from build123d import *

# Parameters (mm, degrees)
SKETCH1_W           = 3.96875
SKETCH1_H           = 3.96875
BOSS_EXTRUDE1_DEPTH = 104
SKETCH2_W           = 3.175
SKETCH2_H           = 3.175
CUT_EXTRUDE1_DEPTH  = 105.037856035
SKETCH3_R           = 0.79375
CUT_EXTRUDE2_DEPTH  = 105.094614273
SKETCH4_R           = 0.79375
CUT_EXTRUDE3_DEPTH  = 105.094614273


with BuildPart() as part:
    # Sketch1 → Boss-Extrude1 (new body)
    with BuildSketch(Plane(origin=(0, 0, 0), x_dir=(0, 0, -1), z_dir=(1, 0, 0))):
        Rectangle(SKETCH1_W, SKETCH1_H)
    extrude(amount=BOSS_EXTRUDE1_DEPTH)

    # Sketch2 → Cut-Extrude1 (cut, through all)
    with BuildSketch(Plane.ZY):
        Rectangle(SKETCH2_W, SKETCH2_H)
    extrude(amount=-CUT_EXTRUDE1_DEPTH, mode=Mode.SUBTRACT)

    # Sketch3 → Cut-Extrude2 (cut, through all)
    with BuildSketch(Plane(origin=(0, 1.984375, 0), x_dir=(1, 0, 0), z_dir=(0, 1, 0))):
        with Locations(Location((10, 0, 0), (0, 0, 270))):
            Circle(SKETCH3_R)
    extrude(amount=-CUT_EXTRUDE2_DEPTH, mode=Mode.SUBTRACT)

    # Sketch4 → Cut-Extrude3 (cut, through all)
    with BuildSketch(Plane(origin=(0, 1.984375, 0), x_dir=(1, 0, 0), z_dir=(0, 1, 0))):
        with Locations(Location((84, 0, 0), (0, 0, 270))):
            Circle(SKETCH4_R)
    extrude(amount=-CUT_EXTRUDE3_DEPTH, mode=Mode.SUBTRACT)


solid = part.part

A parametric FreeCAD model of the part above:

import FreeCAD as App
import Part
import Sketcher
from FreeCAD import Vector
Q = App.Units.Quantity


def add_polygon(sketch, points):
    """Adds a closed chain of lines whose ends are joined by coincident constraints."""
    first, n = sketch.GeometryCount, len(points)
    for a, b in zip(points, points[1:] + points[:1]):
        sketch.addGeometry(Part.LineSegment(App.Vector(*a, 0), App.Vector(*b, 0)), False)
    for i in range(n):
        sketch.addConstraint(Sketcher.Constraint("Coincident", first + i, 2, first + (i + 1) % n, 1))

doc = App.newDocument("Part")
body = doc.addObject("PartDesign::Body", "Body")

sketch1 = doc.addObject("Sketcher::SketchObject", "Sketch")
body.addObject(sketch1)
sketch1.AttachmentSupport = (doc.YZ_Plane, [""])
sketch1.MapMode = "FlatFace"
add_polygon(sketch1, [(2, 2), (-2, 2), (-2, -2), (2, -2)])
sketch1.addConstraint([
    Sketcher.Constraint("Horizontal", 0),
    Sketcher.Constraint("Vertical", 1),
    Sketcher.Constraint("Horizontal", 2),
    Sketcher.Constraint("Vertical", 3),
    Sketcher.Constraint("Symmetric", 0, 2, 2, 2, -1, 1),
    Sketcher.Constraint("Equal", 2, 1),
    Sketcher.Constraint("DistanceX", 0, 2, 0, 1, Q("0.15625 in")),
])
pad1 = doc.addObject("PartDesign::Pad", "Pad")
body.addObject(pad1)
pad1.Profile = sketch1
pad1.Length = 104

sketch2 = doc.addObject("Sketcher::SketchObject", "Sketch001")
body.addObject(sketch2)
sketch2.AttachmentSupport = (doc.YZ_Plane, [""])
sketch2.MapMode = "FlatFace"
add_polygon(sketch2, [(1.6, -1.6), (-1.6, -1.6), (-1.6, 1.6), (1.6, 1.6)])
sketch2.addConstraint([
    Sketcher.Constraint("Horizontal", 0),
    Sketcher.Constraint("Vertical", 1),
    Sketcher.Constraint("Horizontal", 2),
    Sketcher.Constraint("Vertical", 3),
    Sketcher.Constraint("Symmetric", 0, 2, 2, 2, -1, 1),
    Sketcher.Constraint("Equal", 2, 1),
    Sketcher.Constraint("DistanceX", 0, 2, 0, 1, Q("0.125 in")),
])
pocket1 = doc.addObject("PartDesign::Pocket", "Pocket")
body.addObject(pocket1)
pocket1.Profile = sketch2
pocket1.Type = "ThroughAll"
pocket1.Reversed = True

sketch3 = doc.addObject("Sketcher::SketchObject", "Sketch002")
body.addObject(sketch3)
sketch3.AttachmentSupport = (doc.XZ_Plane, [""])
sketch3.MapMode = "FlatFace"
sketch3.AttachmentOffset = App.Placement(Vector(0, 0, -0.078125 * 25.4), App.Rotation())
sketch3.addGeometry(Part.Circle(Vector(10, 0, 0), Vector(0, 0, 1), 0.8), False)
sketch3.addConstraint([
    Sketcher.Constraint("PointOnObject", 0, 3, -1),
    Sketcher.Constraint("Diameter", 0, Q("0.0625 in")),
    Sketcher.Constraint("DistanceX", -1, 1, 0, 3, 10.0),
])
pocket2 = doc.addObject("PartDesign::Pocket", "Pocket001")
body.addObject(pocket2)
pocket2.Profile = sketch3
pocket2.Type = "ThroughAll"
pocket2.Reversed = True

sketch4 = doc.addObject("Sketcher::SketchObject", "Sketch003")
body.addObject(sketch4)
sketch4.AttachmentSupport = (doc.XZ_Plane, [""])
sketch4.MapMode = "FlatFace"
sketch4.AttachmentOffset = App.Placement(Vector(0, 0, -0.078125 * 25.4), App.Rotation())
sketch4.addGeometry(Part.Circle(Vector(84, 0, 0), Vector(0, 0, 1), 0.8), False)
sketch4.addConstraint([
    Sketcher.Constraint("PointOnObject", 0, 3, -1),
    Sketcher.Constraint("Diameter", 0, Q("0.0625 in")),
    Sketcher.Constraint("DistanceX", -1, 1, 0, 3, 84.0),
])
pocket3 = doc.addObject("PartDesign::Pocket", "Pocket002")
body.addObject(pocket3)
pocket3.Profile = sketch4
pocket3.Type = "ThroughAll"
pocket3.Reversed = True

doc.recompute()
